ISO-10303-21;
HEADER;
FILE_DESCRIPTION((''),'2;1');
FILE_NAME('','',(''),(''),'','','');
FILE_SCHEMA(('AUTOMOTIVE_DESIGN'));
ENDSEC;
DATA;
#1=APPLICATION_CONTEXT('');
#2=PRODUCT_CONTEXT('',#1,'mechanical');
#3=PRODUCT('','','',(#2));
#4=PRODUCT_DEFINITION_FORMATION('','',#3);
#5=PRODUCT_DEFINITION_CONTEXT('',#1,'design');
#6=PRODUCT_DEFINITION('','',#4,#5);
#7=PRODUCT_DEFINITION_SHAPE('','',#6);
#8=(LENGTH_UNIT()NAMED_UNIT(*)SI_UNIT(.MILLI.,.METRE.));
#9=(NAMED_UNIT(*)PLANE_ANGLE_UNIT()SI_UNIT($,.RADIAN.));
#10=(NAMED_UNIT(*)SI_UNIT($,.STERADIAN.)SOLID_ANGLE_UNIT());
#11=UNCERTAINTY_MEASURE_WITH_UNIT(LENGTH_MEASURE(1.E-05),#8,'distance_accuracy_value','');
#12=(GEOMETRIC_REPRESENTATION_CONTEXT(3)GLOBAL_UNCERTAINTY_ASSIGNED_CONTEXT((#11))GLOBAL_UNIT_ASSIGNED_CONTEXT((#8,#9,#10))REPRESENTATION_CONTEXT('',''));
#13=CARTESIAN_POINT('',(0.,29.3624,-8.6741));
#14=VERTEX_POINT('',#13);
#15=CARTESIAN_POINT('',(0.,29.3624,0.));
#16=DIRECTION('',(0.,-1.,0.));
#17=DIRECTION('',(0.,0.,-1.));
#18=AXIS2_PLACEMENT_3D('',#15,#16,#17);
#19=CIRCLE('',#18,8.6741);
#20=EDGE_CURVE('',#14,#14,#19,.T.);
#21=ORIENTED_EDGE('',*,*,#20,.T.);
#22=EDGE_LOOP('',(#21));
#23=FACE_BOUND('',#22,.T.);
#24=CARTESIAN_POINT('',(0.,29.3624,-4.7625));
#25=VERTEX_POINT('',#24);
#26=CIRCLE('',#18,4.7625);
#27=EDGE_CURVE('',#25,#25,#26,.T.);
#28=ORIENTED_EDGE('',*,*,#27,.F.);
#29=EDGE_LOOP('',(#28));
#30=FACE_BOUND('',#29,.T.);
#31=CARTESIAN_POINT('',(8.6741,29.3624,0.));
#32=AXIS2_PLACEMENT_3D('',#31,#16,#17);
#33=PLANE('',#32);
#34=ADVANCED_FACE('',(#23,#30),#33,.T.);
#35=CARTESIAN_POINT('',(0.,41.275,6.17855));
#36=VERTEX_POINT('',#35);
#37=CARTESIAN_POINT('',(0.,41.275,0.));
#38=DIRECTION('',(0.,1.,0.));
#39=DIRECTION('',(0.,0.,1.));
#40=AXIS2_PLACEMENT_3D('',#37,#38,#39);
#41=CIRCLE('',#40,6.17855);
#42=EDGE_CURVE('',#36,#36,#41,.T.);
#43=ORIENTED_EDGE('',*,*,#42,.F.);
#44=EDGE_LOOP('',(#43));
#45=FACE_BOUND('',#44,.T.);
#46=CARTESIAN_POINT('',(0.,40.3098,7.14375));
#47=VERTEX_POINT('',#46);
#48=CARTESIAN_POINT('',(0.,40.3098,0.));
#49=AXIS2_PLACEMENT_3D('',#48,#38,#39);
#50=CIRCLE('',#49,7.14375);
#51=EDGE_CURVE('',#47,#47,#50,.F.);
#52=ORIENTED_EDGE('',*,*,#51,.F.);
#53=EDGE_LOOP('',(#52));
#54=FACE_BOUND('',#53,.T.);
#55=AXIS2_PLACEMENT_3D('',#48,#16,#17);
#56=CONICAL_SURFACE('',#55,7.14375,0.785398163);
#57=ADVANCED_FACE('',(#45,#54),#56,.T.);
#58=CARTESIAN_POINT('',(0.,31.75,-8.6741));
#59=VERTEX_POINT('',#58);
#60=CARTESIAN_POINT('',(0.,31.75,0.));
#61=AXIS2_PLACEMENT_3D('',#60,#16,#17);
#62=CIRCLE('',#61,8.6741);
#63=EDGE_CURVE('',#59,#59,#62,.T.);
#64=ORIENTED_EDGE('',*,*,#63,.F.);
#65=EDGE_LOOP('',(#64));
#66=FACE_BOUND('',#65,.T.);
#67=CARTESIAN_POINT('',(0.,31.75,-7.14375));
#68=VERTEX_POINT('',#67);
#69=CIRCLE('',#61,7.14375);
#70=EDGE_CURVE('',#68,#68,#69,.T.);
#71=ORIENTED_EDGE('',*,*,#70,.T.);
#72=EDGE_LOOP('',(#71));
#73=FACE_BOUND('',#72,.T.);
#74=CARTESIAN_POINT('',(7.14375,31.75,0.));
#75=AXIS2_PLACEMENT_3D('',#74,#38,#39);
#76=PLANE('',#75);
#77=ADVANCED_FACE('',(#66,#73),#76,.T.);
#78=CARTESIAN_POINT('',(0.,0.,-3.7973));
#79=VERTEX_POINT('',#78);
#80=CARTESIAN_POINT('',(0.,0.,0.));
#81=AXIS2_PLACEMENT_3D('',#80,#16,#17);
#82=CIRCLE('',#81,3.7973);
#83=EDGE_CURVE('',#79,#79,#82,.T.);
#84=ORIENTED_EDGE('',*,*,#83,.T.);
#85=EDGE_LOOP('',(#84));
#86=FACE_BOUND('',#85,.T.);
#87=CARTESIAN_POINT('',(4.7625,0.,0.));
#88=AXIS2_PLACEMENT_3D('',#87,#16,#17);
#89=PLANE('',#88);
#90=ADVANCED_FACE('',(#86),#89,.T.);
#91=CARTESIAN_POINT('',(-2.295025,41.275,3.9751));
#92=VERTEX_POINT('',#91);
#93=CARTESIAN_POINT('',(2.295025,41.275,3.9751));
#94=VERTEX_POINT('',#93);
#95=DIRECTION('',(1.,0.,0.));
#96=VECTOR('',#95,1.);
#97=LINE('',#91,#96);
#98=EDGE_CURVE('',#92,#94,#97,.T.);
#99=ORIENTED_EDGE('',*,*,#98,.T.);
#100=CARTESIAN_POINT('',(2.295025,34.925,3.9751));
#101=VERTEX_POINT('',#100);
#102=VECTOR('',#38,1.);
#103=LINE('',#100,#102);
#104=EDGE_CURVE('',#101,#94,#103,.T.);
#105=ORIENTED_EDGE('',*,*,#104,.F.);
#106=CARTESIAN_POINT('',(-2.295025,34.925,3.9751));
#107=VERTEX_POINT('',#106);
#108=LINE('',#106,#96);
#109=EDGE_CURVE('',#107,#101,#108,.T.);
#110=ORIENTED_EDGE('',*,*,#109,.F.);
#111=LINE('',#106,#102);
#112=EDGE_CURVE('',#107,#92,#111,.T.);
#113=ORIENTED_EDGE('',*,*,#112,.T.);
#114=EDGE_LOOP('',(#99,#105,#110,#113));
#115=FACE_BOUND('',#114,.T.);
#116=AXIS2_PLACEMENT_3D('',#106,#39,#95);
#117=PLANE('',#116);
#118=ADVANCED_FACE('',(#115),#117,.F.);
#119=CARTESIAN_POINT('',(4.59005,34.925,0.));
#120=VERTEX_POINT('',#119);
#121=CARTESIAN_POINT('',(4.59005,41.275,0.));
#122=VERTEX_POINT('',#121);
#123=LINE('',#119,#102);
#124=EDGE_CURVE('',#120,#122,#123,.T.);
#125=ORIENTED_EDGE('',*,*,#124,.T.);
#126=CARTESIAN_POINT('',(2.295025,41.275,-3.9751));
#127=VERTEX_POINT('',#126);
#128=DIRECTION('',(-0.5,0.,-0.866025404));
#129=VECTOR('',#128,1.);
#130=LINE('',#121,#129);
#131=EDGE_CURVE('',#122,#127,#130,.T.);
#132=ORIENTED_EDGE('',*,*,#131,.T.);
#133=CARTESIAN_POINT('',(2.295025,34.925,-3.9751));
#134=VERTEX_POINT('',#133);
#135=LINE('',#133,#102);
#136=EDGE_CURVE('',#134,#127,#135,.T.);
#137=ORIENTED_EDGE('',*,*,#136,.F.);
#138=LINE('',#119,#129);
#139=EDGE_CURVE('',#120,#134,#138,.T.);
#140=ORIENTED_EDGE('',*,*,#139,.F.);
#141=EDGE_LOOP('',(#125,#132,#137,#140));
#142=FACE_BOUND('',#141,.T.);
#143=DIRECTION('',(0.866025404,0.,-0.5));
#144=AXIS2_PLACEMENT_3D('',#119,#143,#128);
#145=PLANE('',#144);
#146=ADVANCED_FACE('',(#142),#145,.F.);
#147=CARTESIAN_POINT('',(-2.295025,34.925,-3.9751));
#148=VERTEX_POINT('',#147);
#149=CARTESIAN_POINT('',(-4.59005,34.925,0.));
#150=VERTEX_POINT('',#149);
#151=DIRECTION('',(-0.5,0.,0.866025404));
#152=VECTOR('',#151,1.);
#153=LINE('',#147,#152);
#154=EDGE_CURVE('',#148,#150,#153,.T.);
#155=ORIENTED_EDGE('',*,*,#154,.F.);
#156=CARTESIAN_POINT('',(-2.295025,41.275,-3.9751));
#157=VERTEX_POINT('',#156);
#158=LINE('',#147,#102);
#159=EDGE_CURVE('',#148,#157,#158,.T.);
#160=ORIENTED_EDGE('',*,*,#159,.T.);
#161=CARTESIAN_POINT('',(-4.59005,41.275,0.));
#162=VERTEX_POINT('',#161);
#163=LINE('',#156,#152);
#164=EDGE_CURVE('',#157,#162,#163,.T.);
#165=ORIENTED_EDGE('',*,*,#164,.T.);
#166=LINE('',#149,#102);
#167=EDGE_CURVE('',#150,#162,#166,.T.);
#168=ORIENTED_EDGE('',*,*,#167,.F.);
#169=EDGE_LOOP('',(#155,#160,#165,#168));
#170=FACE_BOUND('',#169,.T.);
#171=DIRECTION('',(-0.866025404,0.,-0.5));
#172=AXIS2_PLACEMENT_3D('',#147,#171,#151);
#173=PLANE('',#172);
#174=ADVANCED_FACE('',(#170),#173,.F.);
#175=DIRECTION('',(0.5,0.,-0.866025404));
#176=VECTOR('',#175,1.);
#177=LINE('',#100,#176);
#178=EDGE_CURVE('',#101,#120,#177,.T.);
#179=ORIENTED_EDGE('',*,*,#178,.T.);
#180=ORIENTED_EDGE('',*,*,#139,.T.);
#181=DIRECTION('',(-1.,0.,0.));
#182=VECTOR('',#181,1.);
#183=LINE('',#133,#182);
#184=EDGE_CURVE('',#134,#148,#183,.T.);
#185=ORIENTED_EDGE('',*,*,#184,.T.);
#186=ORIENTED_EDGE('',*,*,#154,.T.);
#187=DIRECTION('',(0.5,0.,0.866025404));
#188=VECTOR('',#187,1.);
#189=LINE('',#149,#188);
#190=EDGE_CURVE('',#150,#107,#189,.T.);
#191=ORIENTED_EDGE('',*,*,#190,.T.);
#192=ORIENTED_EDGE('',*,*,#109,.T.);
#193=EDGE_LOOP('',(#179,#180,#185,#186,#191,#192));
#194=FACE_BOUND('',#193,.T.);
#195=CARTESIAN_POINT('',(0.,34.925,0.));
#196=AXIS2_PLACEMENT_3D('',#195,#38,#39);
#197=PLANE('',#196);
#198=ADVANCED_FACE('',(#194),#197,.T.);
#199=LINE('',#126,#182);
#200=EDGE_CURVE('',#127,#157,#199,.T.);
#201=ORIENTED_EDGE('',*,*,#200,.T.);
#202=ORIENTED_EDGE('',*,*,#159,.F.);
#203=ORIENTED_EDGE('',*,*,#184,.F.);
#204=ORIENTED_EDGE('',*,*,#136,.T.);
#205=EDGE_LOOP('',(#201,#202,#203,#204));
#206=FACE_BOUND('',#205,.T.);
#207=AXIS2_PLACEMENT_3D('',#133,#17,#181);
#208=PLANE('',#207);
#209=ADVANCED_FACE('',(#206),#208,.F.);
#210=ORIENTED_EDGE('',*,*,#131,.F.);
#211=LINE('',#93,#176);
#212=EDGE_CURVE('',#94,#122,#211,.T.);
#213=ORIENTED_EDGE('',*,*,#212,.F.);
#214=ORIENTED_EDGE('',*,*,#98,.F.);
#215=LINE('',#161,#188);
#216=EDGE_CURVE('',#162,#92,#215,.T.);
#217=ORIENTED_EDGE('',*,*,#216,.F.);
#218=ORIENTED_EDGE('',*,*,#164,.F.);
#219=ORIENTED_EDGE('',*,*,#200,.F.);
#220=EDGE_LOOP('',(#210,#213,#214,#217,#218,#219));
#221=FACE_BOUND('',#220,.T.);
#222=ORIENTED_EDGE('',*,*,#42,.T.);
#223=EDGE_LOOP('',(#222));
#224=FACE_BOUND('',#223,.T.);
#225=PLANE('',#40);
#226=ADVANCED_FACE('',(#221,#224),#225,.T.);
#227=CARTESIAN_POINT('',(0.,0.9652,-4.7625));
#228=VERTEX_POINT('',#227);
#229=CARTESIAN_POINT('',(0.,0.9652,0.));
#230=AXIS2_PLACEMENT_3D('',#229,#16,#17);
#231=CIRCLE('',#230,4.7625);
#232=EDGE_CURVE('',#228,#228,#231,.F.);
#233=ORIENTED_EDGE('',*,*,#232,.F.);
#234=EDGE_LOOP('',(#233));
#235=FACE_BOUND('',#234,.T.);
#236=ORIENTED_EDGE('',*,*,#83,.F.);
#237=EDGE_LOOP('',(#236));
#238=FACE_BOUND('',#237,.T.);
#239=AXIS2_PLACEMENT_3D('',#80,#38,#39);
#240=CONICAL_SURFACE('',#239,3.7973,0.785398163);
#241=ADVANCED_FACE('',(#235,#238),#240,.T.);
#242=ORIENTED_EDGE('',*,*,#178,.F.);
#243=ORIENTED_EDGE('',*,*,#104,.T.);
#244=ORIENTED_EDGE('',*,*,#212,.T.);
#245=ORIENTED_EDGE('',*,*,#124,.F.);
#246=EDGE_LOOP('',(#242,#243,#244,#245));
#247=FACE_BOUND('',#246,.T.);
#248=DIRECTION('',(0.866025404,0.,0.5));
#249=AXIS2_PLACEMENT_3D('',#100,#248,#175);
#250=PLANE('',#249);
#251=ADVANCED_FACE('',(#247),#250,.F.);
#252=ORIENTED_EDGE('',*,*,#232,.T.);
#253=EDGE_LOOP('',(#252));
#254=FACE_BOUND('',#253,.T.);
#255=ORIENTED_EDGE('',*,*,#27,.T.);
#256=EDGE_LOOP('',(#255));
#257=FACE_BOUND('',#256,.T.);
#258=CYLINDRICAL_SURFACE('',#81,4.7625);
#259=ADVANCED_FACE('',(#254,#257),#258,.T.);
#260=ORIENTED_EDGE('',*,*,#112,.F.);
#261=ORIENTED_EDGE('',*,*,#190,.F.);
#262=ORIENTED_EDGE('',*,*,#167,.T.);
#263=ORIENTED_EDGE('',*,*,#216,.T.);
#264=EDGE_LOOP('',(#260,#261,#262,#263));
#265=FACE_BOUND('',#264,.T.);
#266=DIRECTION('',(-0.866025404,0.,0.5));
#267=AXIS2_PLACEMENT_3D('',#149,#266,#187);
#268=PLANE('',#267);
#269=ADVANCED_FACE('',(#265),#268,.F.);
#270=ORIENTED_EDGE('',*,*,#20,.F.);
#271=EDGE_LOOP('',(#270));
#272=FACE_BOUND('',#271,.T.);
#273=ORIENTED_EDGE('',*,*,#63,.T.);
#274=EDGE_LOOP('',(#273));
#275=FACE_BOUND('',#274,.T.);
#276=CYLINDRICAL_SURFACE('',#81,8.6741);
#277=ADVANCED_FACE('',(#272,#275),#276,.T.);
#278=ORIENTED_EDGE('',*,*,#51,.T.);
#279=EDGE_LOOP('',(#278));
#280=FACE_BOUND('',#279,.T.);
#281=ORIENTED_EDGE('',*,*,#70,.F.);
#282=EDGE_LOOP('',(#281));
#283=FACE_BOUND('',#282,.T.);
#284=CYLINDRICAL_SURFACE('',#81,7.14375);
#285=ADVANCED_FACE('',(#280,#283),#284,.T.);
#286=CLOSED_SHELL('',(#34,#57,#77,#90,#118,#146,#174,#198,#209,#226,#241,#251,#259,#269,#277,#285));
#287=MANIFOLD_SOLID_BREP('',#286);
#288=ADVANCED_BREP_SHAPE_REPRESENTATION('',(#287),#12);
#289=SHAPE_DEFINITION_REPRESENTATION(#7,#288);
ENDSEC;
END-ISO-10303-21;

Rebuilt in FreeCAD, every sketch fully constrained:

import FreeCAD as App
import Part
import Sketcher

V = App.Vector
Q = App.Units.Quantity


def edges_at(feature, points):
    """Names of the edges that pass closest to the given points."""
    edges = feature.Shape.Edges
    near = lambda p: min(range(len(edges)), key=lambda i: edges[i].distToShape(Part.Vertex(*p))[0])
    return sorted({f"Edge{near(p) + 1}" for p in points})

doc = App.newDocument("Part")
body = doc.addObject("PartDesign::Body", "Body")

sketch1 = body.newObject("Sketcher::SketchObject", "Sketch")
sketch1.AttachmentSupport = (doc.getObject("XY_Plane"), [""])
sketch1.MapMode = "FlatFace"
sketch1.addGeometry([
    Part.LineSegment(V(7.1, 41.3, 0), V(0, 41.3, 0)),
    Part.LineSegment(V(0, 41.3, 0), V(0, 0, 0)),
    Part.LineSegment(V(0, 0, 0), V(4.8, 0, 0)),
    Part.LineSegment(V(4.8, 0, 0), V(4.8, 29.4, 0)),
    Part.LineSegment(V(4.8, 29.4, 0), V(8.7, 29.4, 0)),
    Part.LineSegment(V(8.7, 29.4, 0), V(8.7, 31.8, 0)),
    Part.LineSegment(V(8.7, 31.8, 0), V(7.1, 31.8, 0)),
    Part.LineSegment(V(7.1, 31.8, 0), V(7.1, 41.3, 0)),
], False)
sketch1.addConstraint([
    Sketcher.Constraint("Coincident", 0, 2, 1, 1),
    Sketcher.Constraint("Coincident", 1, 2, 2, 1),
    Sketcher.Constraint("Coincident", 2, 2, 3, 1),
    Sketcher.Constraint("Coincident", 3, 2, 4, 1),
    Sketcher.Constraint("Coincident", 4, 2, 5, 1),
    Sketcher.Constraint("Coincident", 5, 2, 6, 1),
    Sketcher.Constraint("Coincident", 6, 2, 7, 1),
    Sketcher.Constraint("Coincident", 7, 2, 0, 1),
    Sketcher.Constraint("Horizontal", 0),
    Sketcher.Constraint("Vertical", 1),
    Sketcher.Constraint("Horizontal", 2),
    Sketcher.Constraint("Vertical", 3),
    Sketcher.Constraint("Horizontal", 4),
    Sketcher.Constraint("Vertical", 5),
    Sketcher.Constraint("Horizontal", 6),
    Sketcher.Constraint("Vertical", 7),
    Sketcher.Constraint("Coincident", 1, 2, -1, 1),
    Sketcher.Constraint("DistanceX", 0, 2, 0, 1, Q("0.28125 in")),
    Sketcher.Constraint("DistanceX", 2, 1, 2, 2, Q("0.1875 in")),
    Sketcher.Constraint("DistanceX", 4, 1, 4, 2, Q("0.154 in")),
    Sketcher.Constraint("DistanceY", 1, 2, 1, 1, Q("1.625 in")),
    Sketcher.Constraint("DistanceY", 3, 1, 3, 2, Q("1.156 in")),
    Sketcher.Constraint("DistanceY", 5, 1, 5, 2, Q("0.094 in")),
])
revolution = body.newObject("PartDesign::Revolution", "Revolution")
revolution.Profile = sketch1
revolution.ReferenceAxis = (sketch1, ["V_Axis"])
revolution.Angle = 360

sketch2 = body.newObject("Sketcher::SketchObject", "Sketch001")
sketch2.AttachmentSupport = (doc.getObject("XZ_Plane"), [""])
sketch2.MapMode = "FlatFace"
sketch2.AttachmentOffset = App.Placement(V(0, 0, -1.625 * 25.4), App.Rotation())
sketch2.addGeometry([
    Part.LineSegment(V(4.6, 0, 0), V(2.3, -4, 0)),
    Part.LineSegment(V(2.3, -4, 0), V(-2.3, -4, 0)),
    Part.LineSegment(V(-2.3, -4, 0), V(-4.6, 0, 0)),
    Part.LineSegment(V(-4.6, 0, 0), V(-2.3, 4, 0)),
    Part.LineSegment(V(-2.3, 4, 0), V(2.3, 4, 0)),
    Part.LineSegment(V(2.3, 4, 0), V(4.6, 0, 0)),
], False)
sketch2.addConstraint([
    Sketcher.Constraint("Coincident", 0, 2, 1, 1),
    Sketcher.Constraint("Coincident", 1, 2, 2, 1),
    Sketcher.Constraint("Coincident", 2, 2, 3, 1),
    Sketcher.Constraint("Coincident", 3, 2, 4, 1),
    Sketcher.Constraint("Coincident", 4, 2, 5, 1),
    Sketcher.Constraint("Coincident", 5, 2, 0, 1),
    Sketcher.Constraint("Horizontal", 1),
    Sketcher.Constraint("Horizontal", 4),
    Sketcher.Constraint("Symmetric", 0, 2, 3, 2, -1, 1),
    Sketcher.Constraint("Symmetric", 2, 2, 5, 2, -1, 1),
    Sketcher.Constraint("PointOnObject", 2, 2, -1),
    Sketcher.Constraint("Parallel", 2, 5),
    Sketcher.Constraint("Vertical", 1, 2, 3, 2),
    Sketcher.Constraint("Angle", 0, Q("-120 deg")),
    Sketcher.Constraint("DistanceY", 1, 2, 3, 2, Q("0.313 in")),
    Sketcher.Constraint("DistanceX", 1, 2, 1, 1, 4.59005),
])
pocket1 = body.newObject("PartDesign::Pocket", "Pocket")
pocket1.Profile = sketch2
pocket1.Length = Q("0.25 in")
pocket1.Reversed = True
doc.recompute()

chamfer = body.newObject("PartDesign::Chamfer", "Chamfer")
chamfer.Base = (pocket1, edges_at(pocket1, [(-7.144, 41.275, 0)]))
chamfer.Size = Q("0.038 in")
doc.recompute()

chamfer2 = body.newObject("PartDesign::Chamfer", "Chamfer001")
chamfer2.Base = (chamfer, edges_at(chamfer, [(-4.763, 0, 0)]))
chamfer2.Size = Q("0.038 in")

doc.recompute()
